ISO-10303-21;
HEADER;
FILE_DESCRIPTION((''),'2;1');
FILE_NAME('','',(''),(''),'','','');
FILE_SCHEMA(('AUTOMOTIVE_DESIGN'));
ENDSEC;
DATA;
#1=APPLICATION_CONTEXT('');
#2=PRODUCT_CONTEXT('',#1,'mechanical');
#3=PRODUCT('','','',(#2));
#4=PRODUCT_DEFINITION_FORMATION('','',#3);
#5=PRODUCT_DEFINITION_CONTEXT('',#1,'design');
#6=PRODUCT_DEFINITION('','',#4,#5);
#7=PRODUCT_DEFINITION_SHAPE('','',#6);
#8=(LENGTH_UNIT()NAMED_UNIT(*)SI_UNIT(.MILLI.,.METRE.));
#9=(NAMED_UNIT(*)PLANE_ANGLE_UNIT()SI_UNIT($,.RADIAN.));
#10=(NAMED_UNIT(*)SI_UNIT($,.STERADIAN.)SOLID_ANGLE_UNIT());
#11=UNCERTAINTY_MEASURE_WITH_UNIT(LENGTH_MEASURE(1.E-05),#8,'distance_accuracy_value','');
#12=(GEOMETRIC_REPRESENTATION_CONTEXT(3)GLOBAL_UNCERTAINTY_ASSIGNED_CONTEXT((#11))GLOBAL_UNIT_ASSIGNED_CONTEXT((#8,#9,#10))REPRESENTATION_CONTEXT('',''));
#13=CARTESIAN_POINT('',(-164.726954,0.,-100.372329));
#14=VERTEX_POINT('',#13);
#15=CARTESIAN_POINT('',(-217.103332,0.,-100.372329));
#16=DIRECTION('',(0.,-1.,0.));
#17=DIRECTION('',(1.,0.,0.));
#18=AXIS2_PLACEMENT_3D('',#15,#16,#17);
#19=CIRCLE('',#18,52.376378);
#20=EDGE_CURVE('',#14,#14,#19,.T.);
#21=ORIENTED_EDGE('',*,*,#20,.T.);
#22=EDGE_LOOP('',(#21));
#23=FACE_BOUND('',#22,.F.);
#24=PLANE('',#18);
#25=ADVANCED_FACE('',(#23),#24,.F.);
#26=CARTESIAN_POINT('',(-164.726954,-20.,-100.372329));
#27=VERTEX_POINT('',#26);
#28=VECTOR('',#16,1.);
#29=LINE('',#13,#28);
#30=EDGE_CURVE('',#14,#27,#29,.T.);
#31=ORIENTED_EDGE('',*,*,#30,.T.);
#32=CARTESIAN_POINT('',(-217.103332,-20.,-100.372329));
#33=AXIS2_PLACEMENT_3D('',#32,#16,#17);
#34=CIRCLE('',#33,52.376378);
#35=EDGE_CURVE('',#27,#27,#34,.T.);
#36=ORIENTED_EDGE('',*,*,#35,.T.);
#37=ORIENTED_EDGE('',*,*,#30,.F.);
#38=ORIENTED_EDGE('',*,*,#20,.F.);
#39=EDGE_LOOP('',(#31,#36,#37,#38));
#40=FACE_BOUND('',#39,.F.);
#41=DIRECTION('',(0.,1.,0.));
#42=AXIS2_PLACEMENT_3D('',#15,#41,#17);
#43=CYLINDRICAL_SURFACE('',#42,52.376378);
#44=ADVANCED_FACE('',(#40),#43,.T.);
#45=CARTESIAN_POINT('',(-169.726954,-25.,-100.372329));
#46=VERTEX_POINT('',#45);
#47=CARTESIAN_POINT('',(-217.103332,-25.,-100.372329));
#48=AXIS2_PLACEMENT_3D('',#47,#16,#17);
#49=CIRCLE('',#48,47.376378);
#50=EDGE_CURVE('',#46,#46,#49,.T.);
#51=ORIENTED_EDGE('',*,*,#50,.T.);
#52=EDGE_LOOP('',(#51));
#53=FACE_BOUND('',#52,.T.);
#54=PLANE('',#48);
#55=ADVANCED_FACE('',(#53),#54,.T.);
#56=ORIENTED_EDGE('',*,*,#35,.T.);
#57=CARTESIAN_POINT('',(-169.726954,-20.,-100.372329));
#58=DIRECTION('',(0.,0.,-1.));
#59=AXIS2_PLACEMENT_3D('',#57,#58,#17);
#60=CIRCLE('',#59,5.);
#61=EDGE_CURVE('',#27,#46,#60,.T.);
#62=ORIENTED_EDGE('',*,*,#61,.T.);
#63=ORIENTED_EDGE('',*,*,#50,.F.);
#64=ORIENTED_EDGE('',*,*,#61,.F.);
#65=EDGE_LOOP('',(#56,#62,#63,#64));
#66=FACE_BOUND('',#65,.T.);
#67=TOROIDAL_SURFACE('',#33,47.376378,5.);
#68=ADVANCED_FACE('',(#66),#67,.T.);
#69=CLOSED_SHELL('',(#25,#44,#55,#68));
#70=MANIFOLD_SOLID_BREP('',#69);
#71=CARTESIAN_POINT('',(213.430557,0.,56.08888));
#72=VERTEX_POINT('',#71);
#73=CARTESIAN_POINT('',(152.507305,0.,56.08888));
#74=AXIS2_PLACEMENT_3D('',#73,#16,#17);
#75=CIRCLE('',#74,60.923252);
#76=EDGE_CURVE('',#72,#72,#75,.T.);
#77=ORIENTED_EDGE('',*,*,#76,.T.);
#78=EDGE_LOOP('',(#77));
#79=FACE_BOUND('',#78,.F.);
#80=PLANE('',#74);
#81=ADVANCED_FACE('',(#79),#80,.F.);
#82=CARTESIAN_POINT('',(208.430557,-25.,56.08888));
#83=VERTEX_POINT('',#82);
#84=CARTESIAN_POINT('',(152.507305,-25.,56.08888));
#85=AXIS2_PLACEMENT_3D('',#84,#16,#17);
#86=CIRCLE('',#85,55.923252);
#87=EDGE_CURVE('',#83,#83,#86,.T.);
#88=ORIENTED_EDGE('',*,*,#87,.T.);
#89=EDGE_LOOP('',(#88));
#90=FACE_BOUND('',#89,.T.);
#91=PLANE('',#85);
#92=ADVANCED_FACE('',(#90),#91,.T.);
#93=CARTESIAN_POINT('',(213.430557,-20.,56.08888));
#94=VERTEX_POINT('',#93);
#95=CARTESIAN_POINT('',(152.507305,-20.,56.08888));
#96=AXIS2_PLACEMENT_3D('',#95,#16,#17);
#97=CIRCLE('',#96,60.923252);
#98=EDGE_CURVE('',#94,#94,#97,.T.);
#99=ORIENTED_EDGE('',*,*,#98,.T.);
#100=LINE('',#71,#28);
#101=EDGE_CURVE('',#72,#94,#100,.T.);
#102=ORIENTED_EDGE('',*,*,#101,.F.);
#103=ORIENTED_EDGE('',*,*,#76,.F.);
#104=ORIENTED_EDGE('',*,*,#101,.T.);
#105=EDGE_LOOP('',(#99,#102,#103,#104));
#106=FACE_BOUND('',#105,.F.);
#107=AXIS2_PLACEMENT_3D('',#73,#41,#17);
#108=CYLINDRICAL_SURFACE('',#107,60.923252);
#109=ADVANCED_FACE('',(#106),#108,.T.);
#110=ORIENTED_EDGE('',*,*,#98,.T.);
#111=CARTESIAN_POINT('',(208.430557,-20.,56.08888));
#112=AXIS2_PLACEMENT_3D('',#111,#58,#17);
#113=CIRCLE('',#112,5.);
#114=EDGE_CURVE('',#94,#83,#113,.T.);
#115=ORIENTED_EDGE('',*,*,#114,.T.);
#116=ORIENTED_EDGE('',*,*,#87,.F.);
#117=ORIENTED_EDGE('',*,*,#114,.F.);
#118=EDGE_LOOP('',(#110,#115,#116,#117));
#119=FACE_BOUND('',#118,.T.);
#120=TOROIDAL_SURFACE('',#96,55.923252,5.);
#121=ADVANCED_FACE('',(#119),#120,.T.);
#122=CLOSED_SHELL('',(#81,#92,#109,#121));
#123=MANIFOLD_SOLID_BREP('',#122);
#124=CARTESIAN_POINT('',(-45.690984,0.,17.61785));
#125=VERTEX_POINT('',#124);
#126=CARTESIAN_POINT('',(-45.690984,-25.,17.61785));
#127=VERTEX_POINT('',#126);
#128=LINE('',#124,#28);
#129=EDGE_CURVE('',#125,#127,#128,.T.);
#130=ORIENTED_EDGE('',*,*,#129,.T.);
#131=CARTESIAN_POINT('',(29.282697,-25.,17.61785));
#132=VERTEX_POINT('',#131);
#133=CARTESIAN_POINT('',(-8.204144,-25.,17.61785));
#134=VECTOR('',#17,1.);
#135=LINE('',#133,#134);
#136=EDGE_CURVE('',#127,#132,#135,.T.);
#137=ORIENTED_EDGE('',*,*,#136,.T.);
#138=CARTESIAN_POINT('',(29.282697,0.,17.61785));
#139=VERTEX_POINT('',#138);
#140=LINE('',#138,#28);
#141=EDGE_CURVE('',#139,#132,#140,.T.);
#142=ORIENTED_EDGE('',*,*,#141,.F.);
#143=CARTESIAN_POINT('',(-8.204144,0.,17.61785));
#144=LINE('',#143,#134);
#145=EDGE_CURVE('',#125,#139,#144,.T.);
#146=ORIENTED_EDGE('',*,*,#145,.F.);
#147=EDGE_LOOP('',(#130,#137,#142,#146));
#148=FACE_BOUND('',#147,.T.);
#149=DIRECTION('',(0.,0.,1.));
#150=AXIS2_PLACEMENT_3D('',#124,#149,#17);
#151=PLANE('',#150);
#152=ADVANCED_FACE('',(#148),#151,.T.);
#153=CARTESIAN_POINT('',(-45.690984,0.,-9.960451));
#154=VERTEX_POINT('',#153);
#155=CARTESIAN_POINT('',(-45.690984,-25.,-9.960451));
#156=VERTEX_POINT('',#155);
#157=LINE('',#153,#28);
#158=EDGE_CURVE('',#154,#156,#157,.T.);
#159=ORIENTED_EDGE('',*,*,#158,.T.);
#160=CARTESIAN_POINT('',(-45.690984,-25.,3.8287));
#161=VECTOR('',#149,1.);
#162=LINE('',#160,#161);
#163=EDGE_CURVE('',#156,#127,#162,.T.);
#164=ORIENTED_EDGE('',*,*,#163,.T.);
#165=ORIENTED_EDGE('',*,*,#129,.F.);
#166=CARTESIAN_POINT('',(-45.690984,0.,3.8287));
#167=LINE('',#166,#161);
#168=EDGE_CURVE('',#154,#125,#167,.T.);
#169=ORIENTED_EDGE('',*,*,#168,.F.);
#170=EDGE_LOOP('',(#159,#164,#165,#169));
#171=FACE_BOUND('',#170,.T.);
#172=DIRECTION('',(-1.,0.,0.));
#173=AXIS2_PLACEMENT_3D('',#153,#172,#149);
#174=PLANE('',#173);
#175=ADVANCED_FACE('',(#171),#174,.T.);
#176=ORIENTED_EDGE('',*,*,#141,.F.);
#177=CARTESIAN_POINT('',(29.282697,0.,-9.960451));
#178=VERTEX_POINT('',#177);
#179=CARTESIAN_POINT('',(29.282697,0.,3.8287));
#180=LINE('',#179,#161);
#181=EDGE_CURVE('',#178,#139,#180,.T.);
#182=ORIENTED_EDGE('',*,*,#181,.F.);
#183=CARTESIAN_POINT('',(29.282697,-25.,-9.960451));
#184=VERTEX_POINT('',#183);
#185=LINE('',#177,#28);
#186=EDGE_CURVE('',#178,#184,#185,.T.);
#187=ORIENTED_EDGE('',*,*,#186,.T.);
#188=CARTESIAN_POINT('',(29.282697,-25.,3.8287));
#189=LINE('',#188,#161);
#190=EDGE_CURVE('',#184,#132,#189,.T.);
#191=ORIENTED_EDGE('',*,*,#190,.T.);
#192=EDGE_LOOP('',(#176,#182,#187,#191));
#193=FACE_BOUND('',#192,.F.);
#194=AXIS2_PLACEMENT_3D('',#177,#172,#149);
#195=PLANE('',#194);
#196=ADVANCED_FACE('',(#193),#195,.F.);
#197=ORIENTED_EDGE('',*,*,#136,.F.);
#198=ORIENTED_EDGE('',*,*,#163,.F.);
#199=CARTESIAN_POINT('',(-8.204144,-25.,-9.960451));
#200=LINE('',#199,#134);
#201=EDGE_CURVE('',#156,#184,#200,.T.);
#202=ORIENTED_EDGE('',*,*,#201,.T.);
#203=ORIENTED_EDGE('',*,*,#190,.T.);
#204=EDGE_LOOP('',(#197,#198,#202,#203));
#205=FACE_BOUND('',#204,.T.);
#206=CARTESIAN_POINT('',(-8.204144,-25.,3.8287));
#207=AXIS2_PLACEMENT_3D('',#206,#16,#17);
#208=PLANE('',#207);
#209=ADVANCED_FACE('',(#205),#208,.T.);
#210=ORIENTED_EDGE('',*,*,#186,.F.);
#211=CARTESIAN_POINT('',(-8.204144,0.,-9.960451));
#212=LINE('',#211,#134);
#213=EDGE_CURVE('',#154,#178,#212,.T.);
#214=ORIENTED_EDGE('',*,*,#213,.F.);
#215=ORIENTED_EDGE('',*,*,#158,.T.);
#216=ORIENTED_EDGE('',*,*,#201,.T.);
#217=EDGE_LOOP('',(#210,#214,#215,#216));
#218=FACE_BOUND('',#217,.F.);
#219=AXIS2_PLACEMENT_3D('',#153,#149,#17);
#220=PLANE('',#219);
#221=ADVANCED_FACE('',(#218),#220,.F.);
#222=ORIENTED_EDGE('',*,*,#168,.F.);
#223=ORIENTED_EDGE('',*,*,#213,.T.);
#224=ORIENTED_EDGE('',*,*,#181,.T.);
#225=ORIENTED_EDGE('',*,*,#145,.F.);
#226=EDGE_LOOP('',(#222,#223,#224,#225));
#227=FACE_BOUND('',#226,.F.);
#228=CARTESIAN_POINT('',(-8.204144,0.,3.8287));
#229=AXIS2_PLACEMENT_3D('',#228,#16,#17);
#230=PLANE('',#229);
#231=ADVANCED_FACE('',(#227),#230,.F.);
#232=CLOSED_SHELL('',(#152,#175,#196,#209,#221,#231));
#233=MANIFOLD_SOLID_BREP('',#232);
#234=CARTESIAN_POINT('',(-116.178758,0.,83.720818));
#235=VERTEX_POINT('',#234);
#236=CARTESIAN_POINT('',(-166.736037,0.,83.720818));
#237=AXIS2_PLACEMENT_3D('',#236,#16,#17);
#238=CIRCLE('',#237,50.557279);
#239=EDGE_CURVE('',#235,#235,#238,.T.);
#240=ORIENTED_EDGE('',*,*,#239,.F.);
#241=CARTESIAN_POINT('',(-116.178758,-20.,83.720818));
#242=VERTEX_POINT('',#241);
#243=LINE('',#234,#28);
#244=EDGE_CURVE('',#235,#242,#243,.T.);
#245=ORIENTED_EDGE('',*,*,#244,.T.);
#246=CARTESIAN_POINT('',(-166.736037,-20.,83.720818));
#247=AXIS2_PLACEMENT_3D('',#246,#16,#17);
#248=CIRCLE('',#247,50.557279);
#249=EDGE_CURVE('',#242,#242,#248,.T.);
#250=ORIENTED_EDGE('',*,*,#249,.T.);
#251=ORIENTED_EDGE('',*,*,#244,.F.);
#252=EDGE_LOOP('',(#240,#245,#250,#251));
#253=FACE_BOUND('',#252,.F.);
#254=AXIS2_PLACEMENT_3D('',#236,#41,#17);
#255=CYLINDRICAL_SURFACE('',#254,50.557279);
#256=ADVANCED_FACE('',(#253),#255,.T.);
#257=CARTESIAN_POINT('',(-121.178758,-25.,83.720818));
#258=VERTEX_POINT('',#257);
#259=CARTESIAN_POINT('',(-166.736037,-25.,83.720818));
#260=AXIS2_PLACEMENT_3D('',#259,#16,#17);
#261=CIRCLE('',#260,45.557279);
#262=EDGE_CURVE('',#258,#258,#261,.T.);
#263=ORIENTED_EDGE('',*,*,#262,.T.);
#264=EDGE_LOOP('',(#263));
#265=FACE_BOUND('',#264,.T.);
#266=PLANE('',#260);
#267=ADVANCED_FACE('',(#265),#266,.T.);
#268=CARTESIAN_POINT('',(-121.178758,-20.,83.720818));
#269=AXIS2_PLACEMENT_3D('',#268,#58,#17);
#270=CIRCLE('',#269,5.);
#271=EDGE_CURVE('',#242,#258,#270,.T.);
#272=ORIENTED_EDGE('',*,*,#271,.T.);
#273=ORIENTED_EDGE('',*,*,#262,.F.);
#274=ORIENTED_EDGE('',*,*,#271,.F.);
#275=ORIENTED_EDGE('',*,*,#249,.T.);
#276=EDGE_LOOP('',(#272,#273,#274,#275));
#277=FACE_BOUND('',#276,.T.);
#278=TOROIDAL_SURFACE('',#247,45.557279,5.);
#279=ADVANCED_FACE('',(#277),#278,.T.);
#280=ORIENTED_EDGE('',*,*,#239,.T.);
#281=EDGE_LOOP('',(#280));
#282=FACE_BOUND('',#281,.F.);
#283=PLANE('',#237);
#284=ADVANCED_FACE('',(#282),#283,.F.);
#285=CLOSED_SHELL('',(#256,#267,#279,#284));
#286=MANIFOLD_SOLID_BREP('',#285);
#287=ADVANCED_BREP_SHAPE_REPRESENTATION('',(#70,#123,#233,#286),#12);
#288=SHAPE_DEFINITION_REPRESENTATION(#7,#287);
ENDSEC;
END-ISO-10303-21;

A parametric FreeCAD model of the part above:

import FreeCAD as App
import Part
import Sketcher

V = App.Vector


def edges_at(feature, points):
    """Names of the edges that pass closest to the given points."""
    edges = feature.Shape.Edges
    near = lambda p: min(range(len(edges)), key=lambda i: edges[i].distToShape(Part.Vertex(*p))[0])
    return sorted({f"Edge{near(p) + 1}" for p in points})


def add_polygon(sketch, points):
    """Adds a closed chain of lines whose ends are joined by coincident constraints."""
    first, n = sketch.GeometryCount, len(points)
    for a, b in zip(points, points[1:] + points[:1]):
        sketch.addGeometry(Part.LineSegment(App.Vector(*a, 0), App.Vector(*b, 0)), False)
    for i in range(n):
        sketch.addConstraint(Sketcher.Constraint("Coincident", first + i, 2, first + (i + 1) % n, 1))

doc = App.newDocument("Part")
body = doc.addObject("PartDesign::Body", "Body")

# Sketch on XZ plane
sketch1 = doc.addObject("Sketcher::SketchObject", "Sketch")
body.addObject(sketch1)
sketch1.AttachmentSupport = (doc.XZ_Plane, [""])
sketch1.MapMode = "FlatFace"
add_polygon(sketch1, [(-46, 18), (-46, -10), (29, -10), (29, 18)])  # lines 0-3
sketch1.addConstraint(Sketcher.Constraint("Vertical", 0))
sketch1.addConstraint(Sketcher.Constraint("Horizontal", 1))
sketch1.addConstraint(Sketcher.Constraint("Vertical", 2))
sketch1.addConstraint(Sketcher.Constraint("Horizontal", 3))
sketch1.addConstraint(Sketcher.Constraint("DistanceY", 0, 2, 0, 1, 27.578301))
sketch1.addConstraint(Sketcher.Constraint("DistanceX", 1, 1, 1, 2, 74.973681))
sketch1.addConstraint(Sketcher.Constraint("DistanceY", 0, 2, -1, 1, 9.960451))
sketch1.addConstraint(Sketcher.Constraint("DistanceX", 0, 2, -1, 1, 45.690984))
pad1 = doc.addObject("PartDesign::Pad", "Pad")
body.addObject(pad1)
pad1.Profile = sketch1
pad1.Length = 25
body2 = doc.addObject("PartDesign::Body", "Body001")
body2.AllowCompound = True

# Sketch on XZ plane
sketch2 = doc.addObject("Sketcher::SketchObject", "Sketch001")
body2.addObject(sketch2)
sketch2.AttachmentSupport = (doc.getObject("XZ_Plane001"), [""])
sketch2.MapMode = "FlatFace"
sketch2.addGeometry(Part.Circle(V(153, 56, 0), V(0, 0, 1), 61), False)
sketch2.addGeometry(Part.Circle(V(-167, 84, 0), V(0, 0, 1), 51), False)
sketch2.addGeometry(Part.Circle(V(-217, -100, 0), V(0, 0, 1), 52), False)
sketch2.addConstraint(Sketcher.Constraint("Diameter", 1, 101.114558))
sketch2.addConstraint(Sketcher.Constraint("Diameter", 0, 121.846504))
sketch2.addConstraint(Sketcher.Constraint("Diameter", 2, 104.752756))
sketch2.addConstraint(Sketcher.Constraint("DistanceY", -1, 1, 0, 3, 56.08888))
sketch2.addConstraint(Sketcher.Constraint("DistanceX", 2, 3, -1, 1, 217.103332))
sketch2.addConstraint(Sketcher.Constraint("DistanceY", 2, 3, -1, 1, 100.372329))
sketch2.addConstraint(Sketcher.Constraint("DistanceX", 1, 3, 0, 3, 319.243342))
sketch2.addConstraint(Sketcher.Constraint("DistanceX", -1, 1, 0, 3, 152.507305))
sketch2.addConstraint(Sketcher.Constraint("DistanceY", -1, 1, 1, 3, 83.720818))
pad2 = doc.addObject("PartDesign::Pad", "Pad001")
body2.addObject(pad2)
pad2.Profile = sketch2
pad2.Length = 25
doc.recompute()

fillet = doc.addObject("PartDesign::Fillet", "Fillet")
body2.addObject(fillet)
fillet.Base = (pad2, edges_at(pad2, [(-269.48, -25, -100.372), (-217.293, -25, 83.721), (91.584, -25, 56.089)]))
fillet.Radius = 5

doc.recompute()
